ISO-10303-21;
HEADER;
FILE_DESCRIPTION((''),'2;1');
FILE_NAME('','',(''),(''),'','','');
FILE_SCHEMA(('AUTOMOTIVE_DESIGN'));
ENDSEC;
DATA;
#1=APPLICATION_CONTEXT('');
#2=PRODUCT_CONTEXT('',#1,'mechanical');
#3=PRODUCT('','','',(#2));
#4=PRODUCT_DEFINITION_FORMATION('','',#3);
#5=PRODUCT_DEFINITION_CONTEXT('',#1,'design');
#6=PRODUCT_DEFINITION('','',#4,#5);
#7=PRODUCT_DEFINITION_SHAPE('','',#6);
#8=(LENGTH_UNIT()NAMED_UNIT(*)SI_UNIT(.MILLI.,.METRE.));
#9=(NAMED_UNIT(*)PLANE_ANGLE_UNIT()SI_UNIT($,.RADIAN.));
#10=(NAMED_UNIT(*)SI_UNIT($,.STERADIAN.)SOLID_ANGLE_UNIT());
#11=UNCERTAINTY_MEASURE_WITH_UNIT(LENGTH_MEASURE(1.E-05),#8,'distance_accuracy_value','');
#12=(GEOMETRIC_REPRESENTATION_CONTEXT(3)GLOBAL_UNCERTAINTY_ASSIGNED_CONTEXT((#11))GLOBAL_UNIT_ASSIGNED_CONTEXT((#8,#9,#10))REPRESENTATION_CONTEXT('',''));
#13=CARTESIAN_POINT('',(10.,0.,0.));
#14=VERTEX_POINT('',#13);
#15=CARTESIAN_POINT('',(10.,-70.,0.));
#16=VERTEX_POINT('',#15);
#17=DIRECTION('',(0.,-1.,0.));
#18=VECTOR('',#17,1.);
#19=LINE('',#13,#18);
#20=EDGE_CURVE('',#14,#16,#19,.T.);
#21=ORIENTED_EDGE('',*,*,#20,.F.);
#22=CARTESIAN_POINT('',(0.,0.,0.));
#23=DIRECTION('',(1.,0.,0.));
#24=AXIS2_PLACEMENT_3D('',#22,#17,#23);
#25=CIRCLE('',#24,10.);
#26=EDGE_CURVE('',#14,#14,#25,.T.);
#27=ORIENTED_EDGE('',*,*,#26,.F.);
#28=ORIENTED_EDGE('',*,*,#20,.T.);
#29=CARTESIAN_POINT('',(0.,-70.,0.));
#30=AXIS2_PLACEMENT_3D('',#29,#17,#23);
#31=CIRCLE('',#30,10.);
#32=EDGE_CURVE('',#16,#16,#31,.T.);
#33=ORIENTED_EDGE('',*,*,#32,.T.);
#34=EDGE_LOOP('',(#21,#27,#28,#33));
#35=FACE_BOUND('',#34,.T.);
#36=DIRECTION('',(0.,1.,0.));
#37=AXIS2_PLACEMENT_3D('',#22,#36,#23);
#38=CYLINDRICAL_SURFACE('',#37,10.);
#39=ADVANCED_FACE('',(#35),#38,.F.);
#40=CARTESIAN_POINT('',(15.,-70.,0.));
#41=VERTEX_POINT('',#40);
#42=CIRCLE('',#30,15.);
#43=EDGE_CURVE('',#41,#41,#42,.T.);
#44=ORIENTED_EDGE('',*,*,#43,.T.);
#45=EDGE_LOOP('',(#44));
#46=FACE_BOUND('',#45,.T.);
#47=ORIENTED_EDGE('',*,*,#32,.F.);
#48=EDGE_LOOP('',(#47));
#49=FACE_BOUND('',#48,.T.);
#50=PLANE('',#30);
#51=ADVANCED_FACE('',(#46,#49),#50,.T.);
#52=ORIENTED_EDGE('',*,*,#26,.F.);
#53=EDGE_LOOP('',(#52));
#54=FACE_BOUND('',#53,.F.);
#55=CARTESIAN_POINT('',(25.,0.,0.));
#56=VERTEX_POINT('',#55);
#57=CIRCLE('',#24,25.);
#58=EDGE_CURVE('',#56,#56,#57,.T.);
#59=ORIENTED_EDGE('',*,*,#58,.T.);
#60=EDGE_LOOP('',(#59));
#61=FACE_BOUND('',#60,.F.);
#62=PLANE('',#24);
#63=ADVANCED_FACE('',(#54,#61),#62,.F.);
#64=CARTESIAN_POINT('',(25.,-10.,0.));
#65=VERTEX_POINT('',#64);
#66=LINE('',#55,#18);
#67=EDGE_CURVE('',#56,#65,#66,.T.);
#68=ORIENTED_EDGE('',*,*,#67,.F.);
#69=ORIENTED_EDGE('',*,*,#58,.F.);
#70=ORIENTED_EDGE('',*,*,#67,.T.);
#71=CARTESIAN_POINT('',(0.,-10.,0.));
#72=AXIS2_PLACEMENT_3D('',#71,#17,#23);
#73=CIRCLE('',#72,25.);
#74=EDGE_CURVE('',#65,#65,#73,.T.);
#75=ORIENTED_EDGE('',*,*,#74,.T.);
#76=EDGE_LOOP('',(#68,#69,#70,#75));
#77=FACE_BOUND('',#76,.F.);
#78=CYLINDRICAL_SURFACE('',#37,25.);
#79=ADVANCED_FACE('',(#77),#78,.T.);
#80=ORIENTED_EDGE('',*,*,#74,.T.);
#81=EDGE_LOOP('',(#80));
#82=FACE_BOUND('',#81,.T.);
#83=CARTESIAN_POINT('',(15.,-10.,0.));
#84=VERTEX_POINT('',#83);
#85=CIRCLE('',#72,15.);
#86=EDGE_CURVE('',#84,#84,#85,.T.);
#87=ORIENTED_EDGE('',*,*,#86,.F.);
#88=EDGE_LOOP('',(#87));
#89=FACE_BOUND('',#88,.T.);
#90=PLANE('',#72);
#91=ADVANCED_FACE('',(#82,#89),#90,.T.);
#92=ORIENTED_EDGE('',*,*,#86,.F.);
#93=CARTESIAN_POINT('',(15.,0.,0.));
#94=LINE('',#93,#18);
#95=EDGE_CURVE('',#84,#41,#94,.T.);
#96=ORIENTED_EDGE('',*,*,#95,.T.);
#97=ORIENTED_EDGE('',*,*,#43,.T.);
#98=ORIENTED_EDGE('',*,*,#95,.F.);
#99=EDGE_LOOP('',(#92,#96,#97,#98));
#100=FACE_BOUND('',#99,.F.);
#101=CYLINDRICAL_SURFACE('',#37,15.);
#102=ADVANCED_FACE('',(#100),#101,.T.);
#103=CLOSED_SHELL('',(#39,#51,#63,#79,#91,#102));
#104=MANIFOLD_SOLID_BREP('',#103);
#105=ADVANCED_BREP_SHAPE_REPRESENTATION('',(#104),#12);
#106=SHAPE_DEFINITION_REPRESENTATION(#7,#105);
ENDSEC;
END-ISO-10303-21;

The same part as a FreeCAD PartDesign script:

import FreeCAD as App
import Part
import Sketcher

V = App.Vector

doc = App.newDocument("Part")
body = doc.addObject("PartDesign::Body", "Body")

sketch1 = doc.addObject("Sketcher::SketchObject", "Sketch")
body.addObject(sketch1)
sketch1.AttachmentSupport = (doc.XZ_Plane, [""])
sketch1.MapMode = "FlatFace"
sketch1.addGeometry([
    Part.Circle(V(0, 0, 0), V(0, 0, 1), 25),
    Part.Circle(V(0, 0, 0), V(0, 0, 1), 15),
], False)
sketch1.addConstraint([
    Sketcher.Constraint("Coincident", 0, 3, -1, 1),
    Sketcher.Constraint("Coincident", 1, 3, -1, 1),
    Sketcher.Constraint("Diameter", 0, 50.0),
    Sketcher.Constraint("Diameter", 1, 30.0),
])
pad1 = doc.addObject("PartDesign::Pad", "Pad")
body.addObject(pad1)
pad1.Profile = sketch1
pad1.Length = 10

sketch2 = doc.addObject("Sketcher::SketchObject", "Sketch001")
body.addObject(sketch2)
sketch2.AttachmentSupport = (doc.XZ_Plane, [""])
sketch2.MapMode = "FlatFace"
sketch2.addGeometry([
    Part.Circle(V(0, 0, 0), V(0, 0, 1), 15),
    Part.Circle(V(0, 0, 0), V(0, 0, 1), 10),
], False)
sketch2.addConstraint([
    Sketcher.Constraint("Coincident", 0, 3, -1, 1),
    Sketcher.Constraint("Coincident", 1, 3, -1, 1),
    Sketcher.Constraint("Diameter", 0, 30.0),
    Sketcher.Constraint("Diameter", 1, 20.0),
])
pad2 = doc.addObject("PartDesign::Pad", "Pad001")
body.addObject(pad2)
pad2.Profile = sketch2
pad2.Length = 70

doc.recompute()
